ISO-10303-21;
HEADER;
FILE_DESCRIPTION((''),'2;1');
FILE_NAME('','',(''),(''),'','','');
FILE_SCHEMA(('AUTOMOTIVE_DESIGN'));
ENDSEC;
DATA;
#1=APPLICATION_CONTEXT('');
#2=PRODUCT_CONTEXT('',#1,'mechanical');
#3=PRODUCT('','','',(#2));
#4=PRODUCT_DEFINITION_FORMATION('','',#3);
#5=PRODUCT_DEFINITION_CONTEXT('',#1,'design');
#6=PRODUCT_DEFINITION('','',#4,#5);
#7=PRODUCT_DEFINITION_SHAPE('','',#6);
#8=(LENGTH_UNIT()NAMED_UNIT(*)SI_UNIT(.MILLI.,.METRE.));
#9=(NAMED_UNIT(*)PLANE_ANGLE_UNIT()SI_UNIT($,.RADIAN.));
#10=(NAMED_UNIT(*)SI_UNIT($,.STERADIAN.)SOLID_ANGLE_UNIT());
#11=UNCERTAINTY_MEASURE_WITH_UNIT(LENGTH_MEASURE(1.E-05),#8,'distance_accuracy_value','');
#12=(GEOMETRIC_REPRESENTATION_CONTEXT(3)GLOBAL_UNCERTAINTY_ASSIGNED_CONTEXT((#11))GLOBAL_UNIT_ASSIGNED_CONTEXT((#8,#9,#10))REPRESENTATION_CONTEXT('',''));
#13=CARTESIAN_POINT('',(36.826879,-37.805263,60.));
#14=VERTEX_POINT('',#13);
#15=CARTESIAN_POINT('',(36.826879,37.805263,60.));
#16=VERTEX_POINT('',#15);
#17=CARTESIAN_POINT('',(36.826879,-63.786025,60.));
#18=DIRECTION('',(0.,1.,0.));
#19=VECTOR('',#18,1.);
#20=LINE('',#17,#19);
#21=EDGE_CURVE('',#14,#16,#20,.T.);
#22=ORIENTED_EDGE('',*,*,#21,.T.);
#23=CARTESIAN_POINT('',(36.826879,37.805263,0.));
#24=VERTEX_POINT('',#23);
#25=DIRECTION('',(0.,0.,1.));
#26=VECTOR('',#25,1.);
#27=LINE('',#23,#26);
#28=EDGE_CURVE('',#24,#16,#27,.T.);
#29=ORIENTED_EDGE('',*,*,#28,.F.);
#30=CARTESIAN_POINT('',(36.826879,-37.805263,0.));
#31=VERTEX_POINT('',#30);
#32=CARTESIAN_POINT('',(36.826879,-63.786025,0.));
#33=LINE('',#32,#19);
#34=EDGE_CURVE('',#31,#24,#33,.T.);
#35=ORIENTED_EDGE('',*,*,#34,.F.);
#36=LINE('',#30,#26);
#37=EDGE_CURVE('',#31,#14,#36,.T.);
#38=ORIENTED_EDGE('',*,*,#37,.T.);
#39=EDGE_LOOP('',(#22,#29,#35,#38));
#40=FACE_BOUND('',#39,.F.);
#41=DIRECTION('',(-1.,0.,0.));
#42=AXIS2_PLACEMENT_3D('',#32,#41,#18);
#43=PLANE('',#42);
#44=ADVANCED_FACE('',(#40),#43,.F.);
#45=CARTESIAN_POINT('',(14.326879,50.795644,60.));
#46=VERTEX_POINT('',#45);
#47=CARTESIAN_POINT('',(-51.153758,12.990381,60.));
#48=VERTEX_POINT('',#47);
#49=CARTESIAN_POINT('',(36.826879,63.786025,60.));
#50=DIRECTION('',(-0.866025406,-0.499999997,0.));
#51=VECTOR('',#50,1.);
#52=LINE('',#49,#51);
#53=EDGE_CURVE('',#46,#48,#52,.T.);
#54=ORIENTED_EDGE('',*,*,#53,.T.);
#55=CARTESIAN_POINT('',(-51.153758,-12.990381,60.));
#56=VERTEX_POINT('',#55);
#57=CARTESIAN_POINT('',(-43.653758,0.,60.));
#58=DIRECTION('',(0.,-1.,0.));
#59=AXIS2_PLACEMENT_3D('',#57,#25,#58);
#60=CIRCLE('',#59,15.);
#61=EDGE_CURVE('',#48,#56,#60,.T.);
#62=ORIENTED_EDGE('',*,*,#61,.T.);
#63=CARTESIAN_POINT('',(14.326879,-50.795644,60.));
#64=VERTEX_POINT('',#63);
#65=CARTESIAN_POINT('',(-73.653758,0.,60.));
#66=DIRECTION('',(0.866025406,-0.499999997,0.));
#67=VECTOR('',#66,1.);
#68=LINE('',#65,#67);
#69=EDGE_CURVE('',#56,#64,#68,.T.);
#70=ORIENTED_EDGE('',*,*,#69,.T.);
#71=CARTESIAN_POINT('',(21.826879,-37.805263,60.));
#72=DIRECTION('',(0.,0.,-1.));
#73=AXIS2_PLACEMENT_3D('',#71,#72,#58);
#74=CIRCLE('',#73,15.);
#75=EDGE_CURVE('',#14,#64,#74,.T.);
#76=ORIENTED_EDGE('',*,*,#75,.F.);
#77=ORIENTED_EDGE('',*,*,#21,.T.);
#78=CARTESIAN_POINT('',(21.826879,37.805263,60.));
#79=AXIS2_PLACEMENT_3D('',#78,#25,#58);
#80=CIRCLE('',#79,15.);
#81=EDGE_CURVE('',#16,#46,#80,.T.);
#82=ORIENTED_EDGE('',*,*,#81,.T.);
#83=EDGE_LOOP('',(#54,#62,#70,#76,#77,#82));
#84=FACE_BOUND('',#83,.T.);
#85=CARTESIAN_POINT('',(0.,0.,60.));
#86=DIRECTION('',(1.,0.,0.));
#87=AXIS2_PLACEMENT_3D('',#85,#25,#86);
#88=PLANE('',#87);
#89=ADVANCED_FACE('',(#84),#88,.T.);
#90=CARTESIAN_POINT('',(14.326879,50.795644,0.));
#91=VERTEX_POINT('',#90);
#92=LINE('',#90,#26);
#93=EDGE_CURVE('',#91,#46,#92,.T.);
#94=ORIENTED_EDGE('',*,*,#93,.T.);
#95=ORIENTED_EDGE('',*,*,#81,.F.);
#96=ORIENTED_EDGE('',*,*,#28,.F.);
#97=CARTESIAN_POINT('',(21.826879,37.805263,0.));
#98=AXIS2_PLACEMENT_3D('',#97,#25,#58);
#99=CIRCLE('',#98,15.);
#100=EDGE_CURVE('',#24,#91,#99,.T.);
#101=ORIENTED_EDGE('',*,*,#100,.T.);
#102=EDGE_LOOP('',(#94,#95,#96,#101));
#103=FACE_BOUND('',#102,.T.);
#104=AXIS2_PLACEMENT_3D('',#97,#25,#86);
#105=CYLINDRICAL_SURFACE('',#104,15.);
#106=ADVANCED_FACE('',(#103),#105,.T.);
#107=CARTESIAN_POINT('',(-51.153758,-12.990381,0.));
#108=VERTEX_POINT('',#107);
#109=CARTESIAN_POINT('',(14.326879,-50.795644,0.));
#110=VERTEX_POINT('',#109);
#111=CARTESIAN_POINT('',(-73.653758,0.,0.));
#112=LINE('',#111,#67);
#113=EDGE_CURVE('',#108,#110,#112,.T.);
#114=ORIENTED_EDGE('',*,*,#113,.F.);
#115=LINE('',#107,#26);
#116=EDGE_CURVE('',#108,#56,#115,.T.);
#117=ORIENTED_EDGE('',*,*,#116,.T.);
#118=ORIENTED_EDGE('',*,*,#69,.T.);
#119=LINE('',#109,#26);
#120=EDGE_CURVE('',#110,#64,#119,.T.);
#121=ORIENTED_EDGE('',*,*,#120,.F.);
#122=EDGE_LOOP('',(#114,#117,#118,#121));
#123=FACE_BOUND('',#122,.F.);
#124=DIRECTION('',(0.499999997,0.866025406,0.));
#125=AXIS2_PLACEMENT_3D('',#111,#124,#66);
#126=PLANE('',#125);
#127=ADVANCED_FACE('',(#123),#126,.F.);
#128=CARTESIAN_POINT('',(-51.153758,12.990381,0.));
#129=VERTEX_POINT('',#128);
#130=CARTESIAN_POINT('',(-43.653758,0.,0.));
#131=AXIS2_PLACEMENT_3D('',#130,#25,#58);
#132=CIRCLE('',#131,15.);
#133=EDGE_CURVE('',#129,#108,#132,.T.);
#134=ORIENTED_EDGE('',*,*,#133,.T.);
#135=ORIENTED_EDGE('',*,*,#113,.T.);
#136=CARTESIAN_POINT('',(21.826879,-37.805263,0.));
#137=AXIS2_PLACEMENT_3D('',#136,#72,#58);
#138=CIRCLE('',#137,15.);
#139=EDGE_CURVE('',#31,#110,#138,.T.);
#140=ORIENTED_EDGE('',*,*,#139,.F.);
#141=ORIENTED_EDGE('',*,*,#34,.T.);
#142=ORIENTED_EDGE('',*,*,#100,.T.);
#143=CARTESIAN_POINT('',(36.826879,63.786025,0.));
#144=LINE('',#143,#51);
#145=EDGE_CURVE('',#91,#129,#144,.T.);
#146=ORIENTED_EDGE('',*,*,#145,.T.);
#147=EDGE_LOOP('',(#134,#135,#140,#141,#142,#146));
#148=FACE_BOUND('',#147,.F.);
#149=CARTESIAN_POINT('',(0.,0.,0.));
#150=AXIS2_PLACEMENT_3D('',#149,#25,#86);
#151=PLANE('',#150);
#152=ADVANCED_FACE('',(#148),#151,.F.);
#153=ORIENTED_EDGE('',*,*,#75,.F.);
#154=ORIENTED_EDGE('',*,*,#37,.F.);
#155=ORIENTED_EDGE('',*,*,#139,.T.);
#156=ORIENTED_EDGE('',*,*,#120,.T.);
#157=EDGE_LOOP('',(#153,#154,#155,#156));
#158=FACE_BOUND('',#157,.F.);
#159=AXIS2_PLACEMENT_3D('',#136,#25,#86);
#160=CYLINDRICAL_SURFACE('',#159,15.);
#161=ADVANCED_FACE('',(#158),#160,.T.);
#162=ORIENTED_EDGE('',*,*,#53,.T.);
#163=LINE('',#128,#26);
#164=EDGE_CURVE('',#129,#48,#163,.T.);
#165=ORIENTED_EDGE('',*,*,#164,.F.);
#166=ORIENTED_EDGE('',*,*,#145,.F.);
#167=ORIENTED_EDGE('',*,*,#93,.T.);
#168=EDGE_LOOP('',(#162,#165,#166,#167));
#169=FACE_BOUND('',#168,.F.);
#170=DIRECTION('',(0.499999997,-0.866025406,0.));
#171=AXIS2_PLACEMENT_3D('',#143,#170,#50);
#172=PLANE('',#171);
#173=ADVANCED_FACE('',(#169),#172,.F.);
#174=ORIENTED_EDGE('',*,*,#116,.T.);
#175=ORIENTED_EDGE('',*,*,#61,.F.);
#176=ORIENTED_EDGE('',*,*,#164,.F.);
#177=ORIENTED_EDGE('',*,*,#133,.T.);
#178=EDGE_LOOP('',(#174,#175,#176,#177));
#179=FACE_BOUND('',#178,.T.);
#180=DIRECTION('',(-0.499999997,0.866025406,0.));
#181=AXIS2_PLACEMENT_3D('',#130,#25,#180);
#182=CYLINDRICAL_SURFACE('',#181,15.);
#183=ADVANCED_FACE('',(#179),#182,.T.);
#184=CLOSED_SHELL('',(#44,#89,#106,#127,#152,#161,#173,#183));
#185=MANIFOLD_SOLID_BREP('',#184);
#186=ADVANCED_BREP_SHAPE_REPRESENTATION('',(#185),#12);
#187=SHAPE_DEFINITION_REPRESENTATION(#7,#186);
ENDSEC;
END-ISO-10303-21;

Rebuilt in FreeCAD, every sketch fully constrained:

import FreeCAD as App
import Part
import Sketcher

V = App.Vector
Q = App.Units.Quantity


def edges_at(feature, points):
    """Names of the edges that pass closest to the given points."""
    edges = feature.Shape.Edges
    near = lambda p: min(range(len(edges)), key=lambda i: edges[i].distToShape(Part.Vertex(*p))[0])
    return sorted({f"Edge{near(p) + 1}" for p in points})

doc = App.newDocument("Part")
params = doc.addObject("Spreadsheet::Sheet", "Params")
for row, (alias, value) in enumerate([
    ("pad1_length", "60 mm"),
    ("fillet_radius", "15 mm"),
], start=1):
    params.set(f"A{row}", alias)
    params.set(f"B{row}", "=" + value)
    params.setAlias(f"B{row}", alias)

body = doc.addObject("PartDesign::Body", "Body")

# Sketch on XY plane
sketch1 = doc.addObject("Sketcher::SketchObject", "Sketch")
body.addObject(sketch1)
sketch1.AttachmentSupport = (doc.XY_Plane, [""])
sketch1.MapMode = "FlatFace"
sketch1.addGeometry(Part.LineSegment(V(37, -64, 0), V(37, 64, 0)), False)
sketch1.addGeometry(Part.LineSegment(V(37, 64, 0), V(-74, 0, 0)), False)
sketch1.addGeometry(Part.LineSegment(V(-74, 0, 0), V(37, -64, 0)), False)
sketch1.addConstraint(Sketcher.Constraint("Coincident", 0, 2, 1, 1))
sketch1.addConstraint(Sketcher.Constraint("Coincident", 1, 2, 2, 1))
sketch1.addConstraint(Sketcher.Constraint("Coincident", 2, 2, 0, 1))
sketch1.addConstraint(Sketcher.Constraint("Vertical", 0))
sketch1.addConstraint(Sketcher.Constraint("PointOnObject", 1, 2, -1))
sketch1.addConstraint(Sketcher.Constraint("Equal", 1, 2))
sketch1.addConstraint(Sketcher.Constraint("Angle", 1, Q("-150 deg")))
sketch1.addConstraint(Sketcher.Constraint("DistanceY", 0, 1, 0, 2, Q("127.57205 mm")))
sketch1.addConstraint(Sketcher.Constraint("DistanceX", -1, 1, 0, 2, Q("36.826879 mm")))
pad1 = doc.addObject("PartDesign::Pad", "Pad")
body.addObject(pad1)
pad1.Profile = sketch1
pad1.setExpression("Length", "Params.pad1_length")
doc.recompute()

fillet = doc.addObject("PartDesign::Fillet", "Fillet")
body.addObject(fillet)
fillet.Base = (pad1, edges_at(pad1, [(36.827, 63.786, 30), (36.827, -63.786, 30), (-73.654, 0, 30)]))
fillet.setExpression("Radius", "Params.fillet_radius")

doc.recompute()
